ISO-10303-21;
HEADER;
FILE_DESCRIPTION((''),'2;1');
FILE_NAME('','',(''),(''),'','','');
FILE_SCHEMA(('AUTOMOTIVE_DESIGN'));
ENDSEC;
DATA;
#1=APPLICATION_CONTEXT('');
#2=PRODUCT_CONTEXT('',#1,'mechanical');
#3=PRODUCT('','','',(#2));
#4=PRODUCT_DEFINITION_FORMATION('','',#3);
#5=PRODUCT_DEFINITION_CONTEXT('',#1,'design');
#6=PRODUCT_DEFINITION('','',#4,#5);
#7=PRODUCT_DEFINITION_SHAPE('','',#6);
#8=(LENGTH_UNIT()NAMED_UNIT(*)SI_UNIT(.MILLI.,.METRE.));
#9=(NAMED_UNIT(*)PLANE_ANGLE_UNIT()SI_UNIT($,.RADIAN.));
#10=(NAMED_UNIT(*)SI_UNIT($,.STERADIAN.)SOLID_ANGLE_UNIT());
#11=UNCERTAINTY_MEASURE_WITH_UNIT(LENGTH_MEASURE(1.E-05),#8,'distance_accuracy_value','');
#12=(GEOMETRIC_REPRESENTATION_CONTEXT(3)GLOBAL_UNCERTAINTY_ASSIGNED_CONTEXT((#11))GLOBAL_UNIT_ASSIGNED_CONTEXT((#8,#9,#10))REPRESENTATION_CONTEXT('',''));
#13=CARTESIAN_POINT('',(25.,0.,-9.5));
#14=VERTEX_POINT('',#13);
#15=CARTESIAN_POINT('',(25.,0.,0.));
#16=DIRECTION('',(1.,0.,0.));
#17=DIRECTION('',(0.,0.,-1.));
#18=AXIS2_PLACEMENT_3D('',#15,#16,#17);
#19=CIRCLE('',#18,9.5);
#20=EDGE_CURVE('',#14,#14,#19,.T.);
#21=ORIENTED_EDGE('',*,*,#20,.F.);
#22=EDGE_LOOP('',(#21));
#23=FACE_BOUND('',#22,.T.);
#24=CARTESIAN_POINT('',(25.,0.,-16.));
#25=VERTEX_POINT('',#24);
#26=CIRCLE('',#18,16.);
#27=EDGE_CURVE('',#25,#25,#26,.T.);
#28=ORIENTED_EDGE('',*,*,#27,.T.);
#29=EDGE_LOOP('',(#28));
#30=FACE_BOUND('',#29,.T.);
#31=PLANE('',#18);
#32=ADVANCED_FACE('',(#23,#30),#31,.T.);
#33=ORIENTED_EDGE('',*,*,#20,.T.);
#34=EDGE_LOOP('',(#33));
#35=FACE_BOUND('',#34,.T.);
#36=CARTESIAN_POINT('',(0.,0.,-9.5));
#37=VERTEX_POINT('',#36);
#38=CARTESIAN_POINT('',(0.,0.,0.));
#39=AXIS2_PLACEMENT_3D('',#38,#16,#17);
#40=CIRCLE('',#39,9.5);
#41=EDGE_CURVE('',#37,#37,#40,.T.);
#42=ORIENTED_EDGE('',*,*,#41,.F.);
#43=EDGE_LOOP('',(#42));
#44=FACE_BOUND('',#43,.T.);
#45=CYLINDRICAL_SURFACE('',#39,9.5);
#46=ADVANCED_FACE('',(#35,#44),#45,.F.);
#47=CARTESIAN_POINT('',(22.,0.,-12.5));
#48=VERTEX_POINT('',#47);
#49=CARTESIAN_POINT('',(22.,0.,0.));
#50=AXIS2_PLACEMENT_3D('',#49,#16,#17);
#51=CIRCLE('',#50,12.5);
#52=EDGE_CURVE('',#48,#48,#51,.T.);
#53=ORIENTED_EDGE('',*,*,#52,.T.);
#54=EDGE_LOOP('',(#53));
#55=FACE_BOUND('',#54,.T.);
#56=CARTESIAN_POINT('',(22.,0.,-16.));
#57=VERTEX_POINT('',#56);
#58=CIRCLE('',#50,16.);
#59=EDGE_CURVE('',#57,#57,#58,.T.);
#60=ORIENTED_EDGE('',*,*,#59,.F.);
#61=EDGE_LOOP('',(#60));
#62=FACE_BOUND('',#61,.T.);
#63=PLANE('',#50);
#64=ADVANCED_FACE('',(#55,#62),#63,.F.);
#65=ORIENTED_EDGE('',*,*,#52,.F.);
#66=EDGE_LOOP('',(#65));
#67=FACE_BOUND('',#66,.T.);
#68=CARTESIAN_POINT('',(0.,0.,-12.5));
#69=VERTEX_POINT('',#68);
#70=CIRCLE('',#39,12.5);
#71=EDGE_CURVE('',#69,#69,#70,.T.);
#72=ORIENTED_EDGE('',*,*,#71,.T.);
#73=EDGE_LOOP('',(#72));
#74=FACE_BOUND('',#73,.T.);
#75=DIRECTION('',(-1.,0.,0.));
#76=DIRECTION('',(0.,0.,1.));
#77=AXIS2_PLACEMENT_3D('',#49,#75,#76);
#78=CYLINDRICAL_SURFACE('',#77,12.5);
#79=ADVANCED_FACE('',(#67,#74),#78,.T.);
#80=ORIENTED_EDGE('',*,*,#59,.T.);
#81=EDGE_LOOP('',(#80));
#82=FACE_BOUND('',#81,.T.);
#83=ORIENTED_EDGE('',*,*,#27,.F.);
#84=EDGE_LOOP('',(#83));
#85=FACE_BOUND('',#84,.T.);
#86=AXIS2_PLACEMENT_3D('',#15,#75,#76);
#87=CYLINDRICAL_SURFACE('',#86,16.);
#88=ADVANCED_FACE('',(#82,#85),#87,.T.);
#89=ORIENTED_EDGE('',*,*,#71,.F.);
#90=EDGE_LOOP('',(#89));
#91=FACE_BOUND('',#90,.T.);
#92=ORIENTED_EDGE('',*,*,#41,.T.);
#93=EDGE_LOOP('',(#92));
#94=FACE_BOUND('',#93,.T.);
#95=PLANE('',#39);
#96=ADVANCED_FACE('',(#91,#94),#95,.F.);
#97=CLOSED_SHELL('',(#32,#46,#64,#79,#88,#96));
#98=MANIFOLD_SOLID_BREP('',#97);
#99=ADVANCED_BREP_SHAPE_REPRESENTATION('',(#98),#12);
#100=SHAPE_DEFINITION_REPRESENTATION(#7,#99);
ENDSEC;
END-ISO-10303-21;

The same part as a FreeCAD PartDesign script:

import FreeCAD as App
import Part
import Sketcher

doc = App.newDocument("Part")
body = doc.addObject("PartDesign::Body", "Body")

sketch1 = body.newObject("Sketcher::SketchObject", "Sketch")
sketch1.AttachmentSupport = (doc.getObject("YZ_Plane"), [""])
sketch1.MapMode = "FlatFace"
sketch1.addGeometry(Part.Circle(App.Vector(0, 0, 0), App.Vector(0, 0, 1), 12.5), False)
sketch1.addConstraint([
    Sketcher.Constraint("Coincident", 0, 3, -1, 1),
    Sketcher.Constraint("Diameter", 0, 25.0),
])
pad1 = body.newObject("PartDesign::Pad", "Pad")
pad1.Profile = sketch1
pad1.Length = 22

sketch2 = body.newObject("Sketcher::SketchObject", "Sketch001")
sketch2.AttachmentSupport = (doc.getObject("YZ_Plane"), [""])
sketch2.MapMode = "FlatFace"
sketch2.AttachmentOffset = App.Placement(App.Vector(0, 0, 22), App.Rotation())
sketch2.addGeometry(Part.Circle(App.Vector(0, 0, 0), App.Vector(0, 0, 1), 16), False)
sketch2.addConstraint([
    Sketcher.Constraint("Coincident", 0, 3, -1, 1),
    Sketcher.Constraint("Diameter", 0, 32.0),
])
pad2 = body.newObject("PartDesign::Pad", "Pad001")
pad2.Profile = sketch2
pad2.Length = 3

sketch3 = body.newObject("Sketcher::SketchObject", "Sketch002")
sketch3.AttachmentSupport = (doc.getObject("YZ_Plane"), [""])
sketch3.MapMode = "FlatFace"
sketch3.AttachmentOffset = App.Placement(App.Vector(0, 0, 25), App.Rotation())
sketch3.addGeometry(Part.Circle(App.Vector(0, 0, 0), App.Vector(0, 0, 1), 9.5), False)
sketch3.addConstraint([
    Sketcher.Constraint("Coincident", 0, 3, -1, 1),
    Sketcher.Constraint("Diameter", 0, 19.0),
])
pocket1 = body.newObject("PartDesign::Pocket", "Pocket")
pocket1.Profile = sketch3
pocket1.Type = "ThroughAll"

doc.recompute()
